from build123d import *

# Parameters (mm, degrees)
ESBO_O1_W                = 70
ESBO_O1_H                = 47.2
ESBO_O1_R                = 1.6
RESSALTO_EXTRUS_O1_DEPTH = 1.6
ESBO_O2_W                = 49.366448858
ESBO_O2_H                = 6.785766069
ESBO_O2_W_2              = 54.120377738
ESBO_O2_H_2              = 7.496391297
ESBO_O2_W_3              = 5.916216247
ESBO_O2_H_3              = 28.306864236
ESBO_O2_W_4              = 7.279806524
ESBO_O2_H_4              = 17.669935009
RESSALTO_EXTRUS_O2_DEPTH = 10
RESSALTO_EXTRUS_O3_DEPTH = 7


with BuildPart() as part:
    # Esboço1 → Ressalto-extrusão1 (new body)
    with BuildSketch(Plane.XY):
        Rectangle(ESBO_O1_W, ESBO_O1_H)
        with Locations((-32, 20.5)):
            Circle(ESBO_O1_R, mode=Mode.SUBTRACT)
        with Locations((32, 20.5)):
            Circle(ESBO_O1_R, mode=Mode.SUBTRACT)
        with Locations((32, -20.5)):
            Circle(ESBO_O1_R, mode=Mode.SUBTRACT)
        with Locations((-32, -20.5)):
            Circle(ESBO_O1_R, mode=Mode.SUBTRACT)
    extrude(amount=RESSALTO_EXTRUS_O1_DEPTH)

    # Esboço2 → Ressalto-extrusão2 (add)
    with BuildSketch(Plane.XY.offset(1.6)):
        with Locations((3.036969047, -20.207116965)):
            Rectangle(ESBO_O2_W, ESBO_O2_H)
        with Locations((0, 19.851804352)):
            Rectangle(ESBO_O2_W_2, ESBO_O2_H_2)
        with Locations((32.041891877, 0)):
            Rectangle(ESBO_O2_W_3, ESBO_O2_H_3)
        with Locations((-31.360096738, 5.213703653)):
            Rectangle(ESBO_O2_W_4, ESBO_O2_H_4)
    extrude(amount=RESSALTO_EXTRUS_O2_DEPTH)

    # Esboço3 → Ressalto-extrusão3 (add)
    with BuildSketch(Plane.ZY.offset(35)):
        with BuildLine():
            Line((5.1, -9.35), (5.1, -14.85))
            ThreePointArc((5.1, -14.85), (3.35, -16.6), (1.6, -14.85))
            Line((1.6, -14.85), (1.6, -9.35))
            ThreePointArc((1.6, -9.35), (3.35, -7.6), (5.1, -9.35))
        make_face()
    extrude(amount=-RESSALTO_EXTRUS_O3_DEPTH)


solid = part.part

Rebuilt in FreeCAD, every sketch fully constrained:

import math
import FreeCAD as App
import Part
import Sketcher

V = App.Vector

doc = App.newDocument("Part")
params = doc.addObject("Spreadsheet::Sheet", "Params")
for row, (alias, value) in enumerate([
    ("sketch1_diameter", "3.2 mm"),
    ("sketch1_width", "70 mm"),
    ("sketch1_height", "47.2 mm"),
    ("pad1_length", "1.6 mm"),
    ("pad2_length", "10 mm"),
    ("sketch3_radius", "1.75 mm"),
    ("sketch3_width", "5.5 mm"),
    ("pad3_length", "7 mm"),
], start=1):
    params.set(f"A{row}", alias)
    params.set(f"B{row}", "=" + value)
    params.setAlias(f"B{row}", alias)

body = doc.addObject("PartDesign::Body", "Body")

sketch1 = doc.addObject("Sketcher::SketchObject", "Sketch")
body.addObject(sketch1)
sketch1.AttachmentSupport = (doc.XY_Plane, [""])
sketch1.MapMode = "FlatFace"
sketch1.addGeometry([
    Part.LineSegment(V(-35, 23.6, 0), V(-35, -23.6, 0)),
    Part.LineSegment(V(-35, -23.6, 0), V(35, -23.6, 0)),
    Part.LineSegment(V(35, -23.6, 0), V(35, 23.6, 0)),
    Part.LineSegment(V(35, 23.6, 0), V(-35, 23.6, 0)),
    Part.Circle(V(-32, -20.5, 0), V(0, 0, 1), 1.6),
    Part.Circle(V(32, -20.5, 0), V(0, 0, 1), 1.6),
    Part.Circle(V(-32, 20.5, 0), V(0, 0, 1), 1.6),
    Part.Circle(V(32, 20.5, 0), V(0, 0, 1), 1.6),
], False)
sketch1.addConstraint([
    Sketcher.Constraint("Coincident", 0, 2, 1, 1),
    Sketcher.Constraint("Coincident", 1, 2, 2, 1),
    Sketcher.Constraint("Coincident", 2, 2, 3, 1),
    Sketcher.Constraint("Coincident", 3, 2, 0, 1),
    Sketcher.Constraint("Vertical", 0),
    Sketcher.Constraint("Horizontal", 1),
    Sketcher.Constraint("Vertical", 2),
    Sketcher.Constraint("Horizontal", 3),
    Sketcher.Constraint("Equal", 4, 5),
    Sketcher.Constraint("Equal", 5, 6),
    Sketcher.Constraint("Equal", 6, 7),
    Sketcher.Constraint("Symmetric", 5, 3, 6, 3, -1, 1),
    Sketcher.Constraint("Symmetric", 4, 3, 7, 3, -1, 1),
    Sketcher.Constraint("Symmetric", 0, 2, 2, 2, -1, 1),
    Sketcher.Constraint("Symmetric", 4, 3, 5, 3, -2),
    Sketcher.Constraint("Diameter", 4, 3.2),
    Sketcher.Constraint("DistanceX", 1, 1, 1, 2, 70.0),
    Sketcher.Constraint("DistanceY", 0, 2, 0, 1, 47.2),
    Sketcher.Constraint("DistanceX", 4, 3, -1, 1, 32.0),
    Sketcher.Constraint("DistanceY", 4, 3, 6, 3, 41.0),
])
sketch1.setExpression("Constraints[15]", "Params.sketch1_diameter")
sketch1.setExpression("Constraints[16]", "Params.sketch1_width")
sketch1.setExpression("Constraints[17]", "Params.sketch1_height")
pad1 = doc.addObject("PartDesign::Pad", "Pad")
body.addObject(pad1)
pad1.Profile = sketch1
pad1.setExpression("Length", "Params.pad1_length")

sketch2 = doc.addObject("Sketcher::SketchObject", "Sketch001")
body.addObject(sketch2)
sketch2.AttachmentSupport = (doc.XY_Plane, [""])
sketch2.MapMode = "FlatFace"
sketch2.AttachmentOffset = App.Placement(V(0, 0, 1.6), App.Rotation())
sketch2.addGeometry([
    Part.LineSegment(V(-22, -17, 0), V(-22, -24, 0)),
    Part.LineSegment(V(-22, -24, 0), V(28, -24, 0)),
    Part.LineSegment(V(28, -24, 0), V(28, -17, 0)),
    Part.LineSegment(V(28, -17, 0), V(-22, -17, 0)),
    Part.LineSegment(V(-27, 24, 0), V(-27, 16, 0)),
    Part.LineSegment(V(-27, 16, 0), V(27, 16, 0)),
    Part.LineSegment(V(27, 16, 0), V(27, 24, 0)),
    Part.LineSegment(V(27, 24, 0), V(-27, 24, 0)),
    Part.LineSegment(V(29, 14, 0), V(29, -14, 0)),
    Part.LineSegment(V(29, -14, 0), V(35, -14, 0)),
    Part.LineSegment(V(35, -14, 0), V(35, 14, 0)),
    Part.LineSegment(V(35, 14, 0), V(29, 14, 0)),
    Part.LineSegment(V(-35, 14, 0), V(-35, -4, 0)),
    Part.LineSegment(V(-35, -4, 0), V(-28, -4, 0)),
    Part.LineSegment(V(-28, -4, 0), V(-28, 14, 0)),
    Part.LineSegment(V(-28, 14, 0), V(-35, 14, 0)),
], False)
sketch2.addConstraint([
    Sketcher.Constraint("Coincident", 0, 2, 1, 1),
    Sketcher.Constraint("Coincident", 1, 2, 2, 1),
    Sketcher.Constraint("Coincident", 2, 2, 3, 1),
    Sketcher.Constraint("Coincident", 3, 2, 0, 1),
    Sketcher.Constraint("Coincident", 4, 2, 5, 1),
    Sketcher.Constraint("Coincident", 5, 2, 6, 1),
    Sketcher.Constraint("Coincident", 6, 2, 7, 1),
    Sketcher.Constraint("Coincident", 7, 2, 4, 1),
    Sketcher.Constraint("Coincident", 8, 2, 9, 1),
    Sketcher.Constraint("Coincident", 9, 2, 10, 1),
    Sketcher.Constraint("Coincident", 10, 2, 11, 1),
    Sketcher.Constraint("Coincident", 11, 2, 8, 1),
    Sketcher.Constraint("Coincident", 12, 2, 13, 1),
    Sketcher.Constraint("Coincident", 13, 2, 14, 1),
    Sketcher.Constraint("Coincident", 14, 2, 15, 1),
    Sketcher.Constraint("Coincident", 15, 2, 12, 1),
    Sketcher.Constraint("Vertical", 0),
    Sketcher.Constraint("Horizontal", 1),
    Sketcher.Constraint("Vertical", 2),
    Sketcher.Constraint("Horizontal", 3),
    Sketcher.Constraint("Vertical", 4),
    Sketcher.Constraint("Horizontal", 5),
    Sketcher.Constraint("Vertical", 6),
    Sketcher.Constraint("Horizontal", 7),
    Sketcher.Constraint("Vertical", 8),
    Sketcher.Constraint("Horizontal", 9),
    Sketcher.Constraint("Vertical", 10),
    Sketcher.Constraint("Horizontal", 11),
    Sketcher.Constraint("Vertical", 12),
    Sketcher.Constraint("Horizontal", 13),
    Sketcher.Constraint("Vertical", 14),
    Sketcher.Constraint("Horizontal", 15),
    Sketcher.Constraint("DistanceX", -1, 1, 9, 2, 35.0),
    Sketcher.Constraint("DistanceX", 12, 2, -1, 1, 35.0),
    Sketcher.Constraint("DistanceY", 0, 2, -1, 1, 23.6),
    Sketcher.Constraint("DistanceY", -1, 1, 6, 2, 23.6),
    Sketcher.Constraint("DistanceX", 1, 1, 1, 2, 49.366449),
    Sketcher.Constraint("DistanceY", 4, 2, 4, 1, 7.496391),
    Sketcher.Constraint("DistanceY", 2, 2, 8, 2, 2.660802),
    Sketcher.Constraint("DistanceX", 5, 1, 5, 2, 54.120378),
    Sketcher.Constraint("DistanceX", 9, 1, 9, 2, 5.916216),
    Sketcher.Constraint("DistanceX", 13, 1, 13, 2, 7.279807),
    Sketcher.Constraint("DistanceY", 0, 2, 0, 1, 6.785766),
    Sketcher.Constraint("DistanceY", 8, 2, 8, 1, 28.306864),
    Sketcher.Constraint("DistanceY", 12, 2, 12, 1, 17.669935),
    Sketcher.Constraint("DistanceX", 4, 2, -1, 1, 27.060189),
    Sketcher.Constraint("DistanceY", -1, 1, 14, 2, 14.048671),
    Sketcher.Constraint("DistanceX", 2, 2, 8, 2, 1.36359),
])
pad2 = doc.addObject("PartDesign::Pad", "Pad001")
body.addObject(pad2)
pad2.Profile = sketch2
pad2.setExpression("Length", "Params.pad2_length")

sketch3 = doc.addObject("Sketcher::SketchObject", "Sketch002")
body.addObject(sketch3)
sketch3.AttachmentSupport = (doc.YZ_Plane, [""])
sketch3.MapMode = "FlatFace"
sketch3.AttachmentOffset = App.Placement(V(0, 0, -35), App.Rotation())
sketch3.addGeometry([
    Part.LineSegment(V(-14.8, 5.1, 0), V(-9.3, 5.1, 0)),
    Part.ArcOfCircle(Part.Circle(V(-9.3, 3.4, 0), V(0, 0, 1), 1.8), math.radians(-90), math.radians(90)),
    Part.LineSegment(V(-9.3, 1.6, 0), V(-14.8, 1.6, 0)),
    Part.ArcOfCircle(Part.Circle(V(-14.8, 3.4, 0), V(0, 0, 1), 1.8), math.radians(90), math.radians(270)),
], False)
sketch3.addConstraint([
    Sketcher.Constraint("Tangent", 0, 2, 1, 2),
    Sketcher.Constraint("Tangent", 1, 1, 2, 1),
    Sketcher.Constraint("Tangent", 2, 2, 3, 2),
    Sketcher.Constraint("Tangent", 3, 1, 0, 1),
    Sketcher.Constraint("Horizontal", 0),
    Sketcher.Constraint("Horizontal", 2),
    Sketcher.Constraint("Radius", 1, 1.75),
    Sketcher.Constraint("DistanceX", 0, 1, 0, 2, 5.5),
    Sketcher.Constraint("DistanceY", -1, 1, 0, 2, 5.1),
    Sketcher.Constraint("DistanceX", 1, 3, -1, 1, 9.35),
])
sketch3.setExpression("Constraints[6]", "Params.sketch3_radius")
sketch3.setExpression("Constraints[7]", "Params.sketch3_width")
pad3 = doc.addObject("PartDesign::Pad", "Pad002")
body.addObject(pad3)
pad3.Profile = sketch3
pad3.setExpression("Length", "Params.pad3_length")

doc.recompute()
